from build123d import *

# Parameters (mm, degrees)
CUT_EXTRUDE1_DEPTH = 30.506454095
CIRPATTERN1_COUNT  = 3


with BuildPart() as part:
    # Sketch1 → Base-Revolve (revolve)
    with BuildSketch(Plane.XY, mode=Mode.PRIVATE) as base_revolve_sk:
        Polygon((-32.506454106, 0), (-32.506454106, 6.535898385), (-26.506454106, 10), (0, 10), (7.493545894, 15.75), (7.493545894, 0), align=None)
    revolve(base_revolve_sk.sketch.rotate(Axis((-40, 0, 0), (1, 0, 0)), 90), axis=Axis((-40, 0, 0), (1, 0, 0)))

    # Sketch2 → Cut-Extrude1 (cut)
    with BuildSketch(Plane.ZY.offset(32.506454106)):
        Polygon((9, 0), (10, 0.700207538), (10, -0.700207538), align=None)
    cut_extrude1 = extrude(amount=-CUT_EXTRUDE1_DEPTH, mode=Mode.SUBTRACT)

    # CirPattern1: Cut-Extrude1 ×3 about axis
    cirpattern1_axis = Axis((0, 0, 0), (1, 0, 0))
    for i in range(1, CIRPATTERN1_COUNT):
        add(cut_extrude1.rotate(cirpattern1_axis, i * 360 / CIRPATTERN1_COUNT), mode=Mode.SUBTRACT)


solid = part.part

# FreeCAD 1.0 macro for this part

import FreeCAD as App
import Part
import Sketcher
Q = App.Units.Quantity

doc = App.newDocument("Part")
body = doc.addObject("PartDesign::Body", "Body")

# Sketch on XY plane
sketch1 = doc.addObject("Sketcher::SketchObject", "Sketch")
body.addObject(sketch1)
sketch1.AttachmentSupport = (doc.XY_Plane, [""])
sketch1.MapMode = "FlatFace"
sketch1.addGeometry([
    Part.LineSegment(App.Vector(-33, 7, 0), App.Vector(-33, 0, 0)),  # 0
    Part.LineSegment(App.Vector(-33, 0, 0), App.Vector(7, 0, 0)),  # 1
    Part.LineSegment(App.Vector(7, 0, 0), App.Vector(7, 16, 0)),  # 2
    Part.LineSegment(App.Vector(7, 16, 0), App.Vector(0, 10, 0)),  # 3
    Part.LineSegment(App.Vector(0, 10, 0), App.Vector(-27, 10, 0)),  # 4
    Part.LineSegment(App.Vector(-27, 10, 0), App.Vector(-33, 7, 0)),  # 5
], False)
sketch1.addConstraint([
    Sketcher.Constraint("Coincident", 0, 2, 1, 1),
    Sketcher.Constraint("Coincident", 1, 2, 2, 1),
    Sketcher.Constraint("Coincident", 2, 2, 3, 1),
    Sketcher.Constraint("Coincident", 3, 2, 4, 1),
    Sketcher.Constraint("Coincident", 4, 2, 5, 1),
    Sketcher.Constraint("Coincident", 5, 2, 0, 1),
    Sketcher.Constraint("Vertical", 0),
    Sketcher.Constraint("Horizontal", 1),
    Sketcher.Constraint("Vertical", 2),
    Sketcher.Constraint("Horizontal", 4),
    Sketcher.Constraint("PointOnObject", 0, 2, -1),
    Sketcher.Constraint("PointOnObject", 3, 2, -2),
    Sketcher.Constraint("DistanceX", 1, 1, 1, 2, 40.0),
    Sketcher.Constraint("Angle", 5, Q("-150 deg")),
    Sketcher.Constraint("DistanceY", -1, 1, 3, 2, 10.0),
    Sketcher.Constraint("Angle", 3, Q("-142.5 deg")),
    Sketcher.Constraint("DistanceX", 0, 2, 4, 2, 6.0),
    Sketcher.Constraint("DistanceY", 2, 1, 2, 2, 15.75),
])
revolution = doc.addObject("PartDesign::Revolution", "Revolution")
body.addObject(revolution)
revolution.Profile = sketch1
revolution.ReferenceAxis = (sketch1, ["H_Axis"])
revolution.Angle = 360

# Sketch on YZ plane
sketch2 = doc.addObject("Sketcher::SketchObject", "Sketch001")
body.addObject(sketch2)
sketch2.AttachmentSupport = (doc.YZ_Plane, [""])
sketch2.MapMode = "FlatFace"
sketch2.AttachmentOffset = App.Placement(App.Vector(0, 0, -32.506454), App.Rotation())
sketch2.addGeometry([
    Part.LineSegment(App.Vector(0.7, 10, 0), App.Vector(0, 9, 0)),
    Part.LineSegment(App.Vector(0, 9, 0), App.Vector(-0.7, 10, 0)),
    Part.LineSegment(App.Vector(-0.7, 10, 0), App.Vector(0.7, 10, 0)),
], False)
sketch2.addConstraint([
    Sketcher.Constraint("Coincident", 0, 2, 1, 1),
    Sketcher.Constraint("Coincident", 1, 2, 2, 1),
    Sketcher.Constraint("Coincident", 2, 2, 0, 1),
    Sketcher.Constraint("Horizontal", 2),
    Sketcher.Constraint("PointOnObject", 0, 2, -2),
    Sketcher.Constraint("Equal", 0, 1),
    Sketcher.Constraint("Angle", 0, Q("-125 deg")),
    Sketcher.Constraint("DistanceY", -1, 1, 0, 2, 9.0),
    Sketcher.Constraint("DistanceY", -1, 1, 1, 2, 10.0),
])
pocket1 = doc.addObject("PartDesign::Pocket", "Pocket")
body.addObject(pocket1)
pocket1.Profile = sketch2
pocket1.Length = 30.506454
pocket1.Reversed = True
doc.recompute()

polarpattern = doc.addObject("PartDesign::PolarPattern", "PolarPattern")
body.addObject(polarpattern)
polarpattern.Originals = [pocket1]
polarpattern.Axis = (doc.X_Axis, [""])
polarpattern.Angle = 360
polarpattern.Occurrences = 3
body.Tip = polarpattern

doc.recompute()
